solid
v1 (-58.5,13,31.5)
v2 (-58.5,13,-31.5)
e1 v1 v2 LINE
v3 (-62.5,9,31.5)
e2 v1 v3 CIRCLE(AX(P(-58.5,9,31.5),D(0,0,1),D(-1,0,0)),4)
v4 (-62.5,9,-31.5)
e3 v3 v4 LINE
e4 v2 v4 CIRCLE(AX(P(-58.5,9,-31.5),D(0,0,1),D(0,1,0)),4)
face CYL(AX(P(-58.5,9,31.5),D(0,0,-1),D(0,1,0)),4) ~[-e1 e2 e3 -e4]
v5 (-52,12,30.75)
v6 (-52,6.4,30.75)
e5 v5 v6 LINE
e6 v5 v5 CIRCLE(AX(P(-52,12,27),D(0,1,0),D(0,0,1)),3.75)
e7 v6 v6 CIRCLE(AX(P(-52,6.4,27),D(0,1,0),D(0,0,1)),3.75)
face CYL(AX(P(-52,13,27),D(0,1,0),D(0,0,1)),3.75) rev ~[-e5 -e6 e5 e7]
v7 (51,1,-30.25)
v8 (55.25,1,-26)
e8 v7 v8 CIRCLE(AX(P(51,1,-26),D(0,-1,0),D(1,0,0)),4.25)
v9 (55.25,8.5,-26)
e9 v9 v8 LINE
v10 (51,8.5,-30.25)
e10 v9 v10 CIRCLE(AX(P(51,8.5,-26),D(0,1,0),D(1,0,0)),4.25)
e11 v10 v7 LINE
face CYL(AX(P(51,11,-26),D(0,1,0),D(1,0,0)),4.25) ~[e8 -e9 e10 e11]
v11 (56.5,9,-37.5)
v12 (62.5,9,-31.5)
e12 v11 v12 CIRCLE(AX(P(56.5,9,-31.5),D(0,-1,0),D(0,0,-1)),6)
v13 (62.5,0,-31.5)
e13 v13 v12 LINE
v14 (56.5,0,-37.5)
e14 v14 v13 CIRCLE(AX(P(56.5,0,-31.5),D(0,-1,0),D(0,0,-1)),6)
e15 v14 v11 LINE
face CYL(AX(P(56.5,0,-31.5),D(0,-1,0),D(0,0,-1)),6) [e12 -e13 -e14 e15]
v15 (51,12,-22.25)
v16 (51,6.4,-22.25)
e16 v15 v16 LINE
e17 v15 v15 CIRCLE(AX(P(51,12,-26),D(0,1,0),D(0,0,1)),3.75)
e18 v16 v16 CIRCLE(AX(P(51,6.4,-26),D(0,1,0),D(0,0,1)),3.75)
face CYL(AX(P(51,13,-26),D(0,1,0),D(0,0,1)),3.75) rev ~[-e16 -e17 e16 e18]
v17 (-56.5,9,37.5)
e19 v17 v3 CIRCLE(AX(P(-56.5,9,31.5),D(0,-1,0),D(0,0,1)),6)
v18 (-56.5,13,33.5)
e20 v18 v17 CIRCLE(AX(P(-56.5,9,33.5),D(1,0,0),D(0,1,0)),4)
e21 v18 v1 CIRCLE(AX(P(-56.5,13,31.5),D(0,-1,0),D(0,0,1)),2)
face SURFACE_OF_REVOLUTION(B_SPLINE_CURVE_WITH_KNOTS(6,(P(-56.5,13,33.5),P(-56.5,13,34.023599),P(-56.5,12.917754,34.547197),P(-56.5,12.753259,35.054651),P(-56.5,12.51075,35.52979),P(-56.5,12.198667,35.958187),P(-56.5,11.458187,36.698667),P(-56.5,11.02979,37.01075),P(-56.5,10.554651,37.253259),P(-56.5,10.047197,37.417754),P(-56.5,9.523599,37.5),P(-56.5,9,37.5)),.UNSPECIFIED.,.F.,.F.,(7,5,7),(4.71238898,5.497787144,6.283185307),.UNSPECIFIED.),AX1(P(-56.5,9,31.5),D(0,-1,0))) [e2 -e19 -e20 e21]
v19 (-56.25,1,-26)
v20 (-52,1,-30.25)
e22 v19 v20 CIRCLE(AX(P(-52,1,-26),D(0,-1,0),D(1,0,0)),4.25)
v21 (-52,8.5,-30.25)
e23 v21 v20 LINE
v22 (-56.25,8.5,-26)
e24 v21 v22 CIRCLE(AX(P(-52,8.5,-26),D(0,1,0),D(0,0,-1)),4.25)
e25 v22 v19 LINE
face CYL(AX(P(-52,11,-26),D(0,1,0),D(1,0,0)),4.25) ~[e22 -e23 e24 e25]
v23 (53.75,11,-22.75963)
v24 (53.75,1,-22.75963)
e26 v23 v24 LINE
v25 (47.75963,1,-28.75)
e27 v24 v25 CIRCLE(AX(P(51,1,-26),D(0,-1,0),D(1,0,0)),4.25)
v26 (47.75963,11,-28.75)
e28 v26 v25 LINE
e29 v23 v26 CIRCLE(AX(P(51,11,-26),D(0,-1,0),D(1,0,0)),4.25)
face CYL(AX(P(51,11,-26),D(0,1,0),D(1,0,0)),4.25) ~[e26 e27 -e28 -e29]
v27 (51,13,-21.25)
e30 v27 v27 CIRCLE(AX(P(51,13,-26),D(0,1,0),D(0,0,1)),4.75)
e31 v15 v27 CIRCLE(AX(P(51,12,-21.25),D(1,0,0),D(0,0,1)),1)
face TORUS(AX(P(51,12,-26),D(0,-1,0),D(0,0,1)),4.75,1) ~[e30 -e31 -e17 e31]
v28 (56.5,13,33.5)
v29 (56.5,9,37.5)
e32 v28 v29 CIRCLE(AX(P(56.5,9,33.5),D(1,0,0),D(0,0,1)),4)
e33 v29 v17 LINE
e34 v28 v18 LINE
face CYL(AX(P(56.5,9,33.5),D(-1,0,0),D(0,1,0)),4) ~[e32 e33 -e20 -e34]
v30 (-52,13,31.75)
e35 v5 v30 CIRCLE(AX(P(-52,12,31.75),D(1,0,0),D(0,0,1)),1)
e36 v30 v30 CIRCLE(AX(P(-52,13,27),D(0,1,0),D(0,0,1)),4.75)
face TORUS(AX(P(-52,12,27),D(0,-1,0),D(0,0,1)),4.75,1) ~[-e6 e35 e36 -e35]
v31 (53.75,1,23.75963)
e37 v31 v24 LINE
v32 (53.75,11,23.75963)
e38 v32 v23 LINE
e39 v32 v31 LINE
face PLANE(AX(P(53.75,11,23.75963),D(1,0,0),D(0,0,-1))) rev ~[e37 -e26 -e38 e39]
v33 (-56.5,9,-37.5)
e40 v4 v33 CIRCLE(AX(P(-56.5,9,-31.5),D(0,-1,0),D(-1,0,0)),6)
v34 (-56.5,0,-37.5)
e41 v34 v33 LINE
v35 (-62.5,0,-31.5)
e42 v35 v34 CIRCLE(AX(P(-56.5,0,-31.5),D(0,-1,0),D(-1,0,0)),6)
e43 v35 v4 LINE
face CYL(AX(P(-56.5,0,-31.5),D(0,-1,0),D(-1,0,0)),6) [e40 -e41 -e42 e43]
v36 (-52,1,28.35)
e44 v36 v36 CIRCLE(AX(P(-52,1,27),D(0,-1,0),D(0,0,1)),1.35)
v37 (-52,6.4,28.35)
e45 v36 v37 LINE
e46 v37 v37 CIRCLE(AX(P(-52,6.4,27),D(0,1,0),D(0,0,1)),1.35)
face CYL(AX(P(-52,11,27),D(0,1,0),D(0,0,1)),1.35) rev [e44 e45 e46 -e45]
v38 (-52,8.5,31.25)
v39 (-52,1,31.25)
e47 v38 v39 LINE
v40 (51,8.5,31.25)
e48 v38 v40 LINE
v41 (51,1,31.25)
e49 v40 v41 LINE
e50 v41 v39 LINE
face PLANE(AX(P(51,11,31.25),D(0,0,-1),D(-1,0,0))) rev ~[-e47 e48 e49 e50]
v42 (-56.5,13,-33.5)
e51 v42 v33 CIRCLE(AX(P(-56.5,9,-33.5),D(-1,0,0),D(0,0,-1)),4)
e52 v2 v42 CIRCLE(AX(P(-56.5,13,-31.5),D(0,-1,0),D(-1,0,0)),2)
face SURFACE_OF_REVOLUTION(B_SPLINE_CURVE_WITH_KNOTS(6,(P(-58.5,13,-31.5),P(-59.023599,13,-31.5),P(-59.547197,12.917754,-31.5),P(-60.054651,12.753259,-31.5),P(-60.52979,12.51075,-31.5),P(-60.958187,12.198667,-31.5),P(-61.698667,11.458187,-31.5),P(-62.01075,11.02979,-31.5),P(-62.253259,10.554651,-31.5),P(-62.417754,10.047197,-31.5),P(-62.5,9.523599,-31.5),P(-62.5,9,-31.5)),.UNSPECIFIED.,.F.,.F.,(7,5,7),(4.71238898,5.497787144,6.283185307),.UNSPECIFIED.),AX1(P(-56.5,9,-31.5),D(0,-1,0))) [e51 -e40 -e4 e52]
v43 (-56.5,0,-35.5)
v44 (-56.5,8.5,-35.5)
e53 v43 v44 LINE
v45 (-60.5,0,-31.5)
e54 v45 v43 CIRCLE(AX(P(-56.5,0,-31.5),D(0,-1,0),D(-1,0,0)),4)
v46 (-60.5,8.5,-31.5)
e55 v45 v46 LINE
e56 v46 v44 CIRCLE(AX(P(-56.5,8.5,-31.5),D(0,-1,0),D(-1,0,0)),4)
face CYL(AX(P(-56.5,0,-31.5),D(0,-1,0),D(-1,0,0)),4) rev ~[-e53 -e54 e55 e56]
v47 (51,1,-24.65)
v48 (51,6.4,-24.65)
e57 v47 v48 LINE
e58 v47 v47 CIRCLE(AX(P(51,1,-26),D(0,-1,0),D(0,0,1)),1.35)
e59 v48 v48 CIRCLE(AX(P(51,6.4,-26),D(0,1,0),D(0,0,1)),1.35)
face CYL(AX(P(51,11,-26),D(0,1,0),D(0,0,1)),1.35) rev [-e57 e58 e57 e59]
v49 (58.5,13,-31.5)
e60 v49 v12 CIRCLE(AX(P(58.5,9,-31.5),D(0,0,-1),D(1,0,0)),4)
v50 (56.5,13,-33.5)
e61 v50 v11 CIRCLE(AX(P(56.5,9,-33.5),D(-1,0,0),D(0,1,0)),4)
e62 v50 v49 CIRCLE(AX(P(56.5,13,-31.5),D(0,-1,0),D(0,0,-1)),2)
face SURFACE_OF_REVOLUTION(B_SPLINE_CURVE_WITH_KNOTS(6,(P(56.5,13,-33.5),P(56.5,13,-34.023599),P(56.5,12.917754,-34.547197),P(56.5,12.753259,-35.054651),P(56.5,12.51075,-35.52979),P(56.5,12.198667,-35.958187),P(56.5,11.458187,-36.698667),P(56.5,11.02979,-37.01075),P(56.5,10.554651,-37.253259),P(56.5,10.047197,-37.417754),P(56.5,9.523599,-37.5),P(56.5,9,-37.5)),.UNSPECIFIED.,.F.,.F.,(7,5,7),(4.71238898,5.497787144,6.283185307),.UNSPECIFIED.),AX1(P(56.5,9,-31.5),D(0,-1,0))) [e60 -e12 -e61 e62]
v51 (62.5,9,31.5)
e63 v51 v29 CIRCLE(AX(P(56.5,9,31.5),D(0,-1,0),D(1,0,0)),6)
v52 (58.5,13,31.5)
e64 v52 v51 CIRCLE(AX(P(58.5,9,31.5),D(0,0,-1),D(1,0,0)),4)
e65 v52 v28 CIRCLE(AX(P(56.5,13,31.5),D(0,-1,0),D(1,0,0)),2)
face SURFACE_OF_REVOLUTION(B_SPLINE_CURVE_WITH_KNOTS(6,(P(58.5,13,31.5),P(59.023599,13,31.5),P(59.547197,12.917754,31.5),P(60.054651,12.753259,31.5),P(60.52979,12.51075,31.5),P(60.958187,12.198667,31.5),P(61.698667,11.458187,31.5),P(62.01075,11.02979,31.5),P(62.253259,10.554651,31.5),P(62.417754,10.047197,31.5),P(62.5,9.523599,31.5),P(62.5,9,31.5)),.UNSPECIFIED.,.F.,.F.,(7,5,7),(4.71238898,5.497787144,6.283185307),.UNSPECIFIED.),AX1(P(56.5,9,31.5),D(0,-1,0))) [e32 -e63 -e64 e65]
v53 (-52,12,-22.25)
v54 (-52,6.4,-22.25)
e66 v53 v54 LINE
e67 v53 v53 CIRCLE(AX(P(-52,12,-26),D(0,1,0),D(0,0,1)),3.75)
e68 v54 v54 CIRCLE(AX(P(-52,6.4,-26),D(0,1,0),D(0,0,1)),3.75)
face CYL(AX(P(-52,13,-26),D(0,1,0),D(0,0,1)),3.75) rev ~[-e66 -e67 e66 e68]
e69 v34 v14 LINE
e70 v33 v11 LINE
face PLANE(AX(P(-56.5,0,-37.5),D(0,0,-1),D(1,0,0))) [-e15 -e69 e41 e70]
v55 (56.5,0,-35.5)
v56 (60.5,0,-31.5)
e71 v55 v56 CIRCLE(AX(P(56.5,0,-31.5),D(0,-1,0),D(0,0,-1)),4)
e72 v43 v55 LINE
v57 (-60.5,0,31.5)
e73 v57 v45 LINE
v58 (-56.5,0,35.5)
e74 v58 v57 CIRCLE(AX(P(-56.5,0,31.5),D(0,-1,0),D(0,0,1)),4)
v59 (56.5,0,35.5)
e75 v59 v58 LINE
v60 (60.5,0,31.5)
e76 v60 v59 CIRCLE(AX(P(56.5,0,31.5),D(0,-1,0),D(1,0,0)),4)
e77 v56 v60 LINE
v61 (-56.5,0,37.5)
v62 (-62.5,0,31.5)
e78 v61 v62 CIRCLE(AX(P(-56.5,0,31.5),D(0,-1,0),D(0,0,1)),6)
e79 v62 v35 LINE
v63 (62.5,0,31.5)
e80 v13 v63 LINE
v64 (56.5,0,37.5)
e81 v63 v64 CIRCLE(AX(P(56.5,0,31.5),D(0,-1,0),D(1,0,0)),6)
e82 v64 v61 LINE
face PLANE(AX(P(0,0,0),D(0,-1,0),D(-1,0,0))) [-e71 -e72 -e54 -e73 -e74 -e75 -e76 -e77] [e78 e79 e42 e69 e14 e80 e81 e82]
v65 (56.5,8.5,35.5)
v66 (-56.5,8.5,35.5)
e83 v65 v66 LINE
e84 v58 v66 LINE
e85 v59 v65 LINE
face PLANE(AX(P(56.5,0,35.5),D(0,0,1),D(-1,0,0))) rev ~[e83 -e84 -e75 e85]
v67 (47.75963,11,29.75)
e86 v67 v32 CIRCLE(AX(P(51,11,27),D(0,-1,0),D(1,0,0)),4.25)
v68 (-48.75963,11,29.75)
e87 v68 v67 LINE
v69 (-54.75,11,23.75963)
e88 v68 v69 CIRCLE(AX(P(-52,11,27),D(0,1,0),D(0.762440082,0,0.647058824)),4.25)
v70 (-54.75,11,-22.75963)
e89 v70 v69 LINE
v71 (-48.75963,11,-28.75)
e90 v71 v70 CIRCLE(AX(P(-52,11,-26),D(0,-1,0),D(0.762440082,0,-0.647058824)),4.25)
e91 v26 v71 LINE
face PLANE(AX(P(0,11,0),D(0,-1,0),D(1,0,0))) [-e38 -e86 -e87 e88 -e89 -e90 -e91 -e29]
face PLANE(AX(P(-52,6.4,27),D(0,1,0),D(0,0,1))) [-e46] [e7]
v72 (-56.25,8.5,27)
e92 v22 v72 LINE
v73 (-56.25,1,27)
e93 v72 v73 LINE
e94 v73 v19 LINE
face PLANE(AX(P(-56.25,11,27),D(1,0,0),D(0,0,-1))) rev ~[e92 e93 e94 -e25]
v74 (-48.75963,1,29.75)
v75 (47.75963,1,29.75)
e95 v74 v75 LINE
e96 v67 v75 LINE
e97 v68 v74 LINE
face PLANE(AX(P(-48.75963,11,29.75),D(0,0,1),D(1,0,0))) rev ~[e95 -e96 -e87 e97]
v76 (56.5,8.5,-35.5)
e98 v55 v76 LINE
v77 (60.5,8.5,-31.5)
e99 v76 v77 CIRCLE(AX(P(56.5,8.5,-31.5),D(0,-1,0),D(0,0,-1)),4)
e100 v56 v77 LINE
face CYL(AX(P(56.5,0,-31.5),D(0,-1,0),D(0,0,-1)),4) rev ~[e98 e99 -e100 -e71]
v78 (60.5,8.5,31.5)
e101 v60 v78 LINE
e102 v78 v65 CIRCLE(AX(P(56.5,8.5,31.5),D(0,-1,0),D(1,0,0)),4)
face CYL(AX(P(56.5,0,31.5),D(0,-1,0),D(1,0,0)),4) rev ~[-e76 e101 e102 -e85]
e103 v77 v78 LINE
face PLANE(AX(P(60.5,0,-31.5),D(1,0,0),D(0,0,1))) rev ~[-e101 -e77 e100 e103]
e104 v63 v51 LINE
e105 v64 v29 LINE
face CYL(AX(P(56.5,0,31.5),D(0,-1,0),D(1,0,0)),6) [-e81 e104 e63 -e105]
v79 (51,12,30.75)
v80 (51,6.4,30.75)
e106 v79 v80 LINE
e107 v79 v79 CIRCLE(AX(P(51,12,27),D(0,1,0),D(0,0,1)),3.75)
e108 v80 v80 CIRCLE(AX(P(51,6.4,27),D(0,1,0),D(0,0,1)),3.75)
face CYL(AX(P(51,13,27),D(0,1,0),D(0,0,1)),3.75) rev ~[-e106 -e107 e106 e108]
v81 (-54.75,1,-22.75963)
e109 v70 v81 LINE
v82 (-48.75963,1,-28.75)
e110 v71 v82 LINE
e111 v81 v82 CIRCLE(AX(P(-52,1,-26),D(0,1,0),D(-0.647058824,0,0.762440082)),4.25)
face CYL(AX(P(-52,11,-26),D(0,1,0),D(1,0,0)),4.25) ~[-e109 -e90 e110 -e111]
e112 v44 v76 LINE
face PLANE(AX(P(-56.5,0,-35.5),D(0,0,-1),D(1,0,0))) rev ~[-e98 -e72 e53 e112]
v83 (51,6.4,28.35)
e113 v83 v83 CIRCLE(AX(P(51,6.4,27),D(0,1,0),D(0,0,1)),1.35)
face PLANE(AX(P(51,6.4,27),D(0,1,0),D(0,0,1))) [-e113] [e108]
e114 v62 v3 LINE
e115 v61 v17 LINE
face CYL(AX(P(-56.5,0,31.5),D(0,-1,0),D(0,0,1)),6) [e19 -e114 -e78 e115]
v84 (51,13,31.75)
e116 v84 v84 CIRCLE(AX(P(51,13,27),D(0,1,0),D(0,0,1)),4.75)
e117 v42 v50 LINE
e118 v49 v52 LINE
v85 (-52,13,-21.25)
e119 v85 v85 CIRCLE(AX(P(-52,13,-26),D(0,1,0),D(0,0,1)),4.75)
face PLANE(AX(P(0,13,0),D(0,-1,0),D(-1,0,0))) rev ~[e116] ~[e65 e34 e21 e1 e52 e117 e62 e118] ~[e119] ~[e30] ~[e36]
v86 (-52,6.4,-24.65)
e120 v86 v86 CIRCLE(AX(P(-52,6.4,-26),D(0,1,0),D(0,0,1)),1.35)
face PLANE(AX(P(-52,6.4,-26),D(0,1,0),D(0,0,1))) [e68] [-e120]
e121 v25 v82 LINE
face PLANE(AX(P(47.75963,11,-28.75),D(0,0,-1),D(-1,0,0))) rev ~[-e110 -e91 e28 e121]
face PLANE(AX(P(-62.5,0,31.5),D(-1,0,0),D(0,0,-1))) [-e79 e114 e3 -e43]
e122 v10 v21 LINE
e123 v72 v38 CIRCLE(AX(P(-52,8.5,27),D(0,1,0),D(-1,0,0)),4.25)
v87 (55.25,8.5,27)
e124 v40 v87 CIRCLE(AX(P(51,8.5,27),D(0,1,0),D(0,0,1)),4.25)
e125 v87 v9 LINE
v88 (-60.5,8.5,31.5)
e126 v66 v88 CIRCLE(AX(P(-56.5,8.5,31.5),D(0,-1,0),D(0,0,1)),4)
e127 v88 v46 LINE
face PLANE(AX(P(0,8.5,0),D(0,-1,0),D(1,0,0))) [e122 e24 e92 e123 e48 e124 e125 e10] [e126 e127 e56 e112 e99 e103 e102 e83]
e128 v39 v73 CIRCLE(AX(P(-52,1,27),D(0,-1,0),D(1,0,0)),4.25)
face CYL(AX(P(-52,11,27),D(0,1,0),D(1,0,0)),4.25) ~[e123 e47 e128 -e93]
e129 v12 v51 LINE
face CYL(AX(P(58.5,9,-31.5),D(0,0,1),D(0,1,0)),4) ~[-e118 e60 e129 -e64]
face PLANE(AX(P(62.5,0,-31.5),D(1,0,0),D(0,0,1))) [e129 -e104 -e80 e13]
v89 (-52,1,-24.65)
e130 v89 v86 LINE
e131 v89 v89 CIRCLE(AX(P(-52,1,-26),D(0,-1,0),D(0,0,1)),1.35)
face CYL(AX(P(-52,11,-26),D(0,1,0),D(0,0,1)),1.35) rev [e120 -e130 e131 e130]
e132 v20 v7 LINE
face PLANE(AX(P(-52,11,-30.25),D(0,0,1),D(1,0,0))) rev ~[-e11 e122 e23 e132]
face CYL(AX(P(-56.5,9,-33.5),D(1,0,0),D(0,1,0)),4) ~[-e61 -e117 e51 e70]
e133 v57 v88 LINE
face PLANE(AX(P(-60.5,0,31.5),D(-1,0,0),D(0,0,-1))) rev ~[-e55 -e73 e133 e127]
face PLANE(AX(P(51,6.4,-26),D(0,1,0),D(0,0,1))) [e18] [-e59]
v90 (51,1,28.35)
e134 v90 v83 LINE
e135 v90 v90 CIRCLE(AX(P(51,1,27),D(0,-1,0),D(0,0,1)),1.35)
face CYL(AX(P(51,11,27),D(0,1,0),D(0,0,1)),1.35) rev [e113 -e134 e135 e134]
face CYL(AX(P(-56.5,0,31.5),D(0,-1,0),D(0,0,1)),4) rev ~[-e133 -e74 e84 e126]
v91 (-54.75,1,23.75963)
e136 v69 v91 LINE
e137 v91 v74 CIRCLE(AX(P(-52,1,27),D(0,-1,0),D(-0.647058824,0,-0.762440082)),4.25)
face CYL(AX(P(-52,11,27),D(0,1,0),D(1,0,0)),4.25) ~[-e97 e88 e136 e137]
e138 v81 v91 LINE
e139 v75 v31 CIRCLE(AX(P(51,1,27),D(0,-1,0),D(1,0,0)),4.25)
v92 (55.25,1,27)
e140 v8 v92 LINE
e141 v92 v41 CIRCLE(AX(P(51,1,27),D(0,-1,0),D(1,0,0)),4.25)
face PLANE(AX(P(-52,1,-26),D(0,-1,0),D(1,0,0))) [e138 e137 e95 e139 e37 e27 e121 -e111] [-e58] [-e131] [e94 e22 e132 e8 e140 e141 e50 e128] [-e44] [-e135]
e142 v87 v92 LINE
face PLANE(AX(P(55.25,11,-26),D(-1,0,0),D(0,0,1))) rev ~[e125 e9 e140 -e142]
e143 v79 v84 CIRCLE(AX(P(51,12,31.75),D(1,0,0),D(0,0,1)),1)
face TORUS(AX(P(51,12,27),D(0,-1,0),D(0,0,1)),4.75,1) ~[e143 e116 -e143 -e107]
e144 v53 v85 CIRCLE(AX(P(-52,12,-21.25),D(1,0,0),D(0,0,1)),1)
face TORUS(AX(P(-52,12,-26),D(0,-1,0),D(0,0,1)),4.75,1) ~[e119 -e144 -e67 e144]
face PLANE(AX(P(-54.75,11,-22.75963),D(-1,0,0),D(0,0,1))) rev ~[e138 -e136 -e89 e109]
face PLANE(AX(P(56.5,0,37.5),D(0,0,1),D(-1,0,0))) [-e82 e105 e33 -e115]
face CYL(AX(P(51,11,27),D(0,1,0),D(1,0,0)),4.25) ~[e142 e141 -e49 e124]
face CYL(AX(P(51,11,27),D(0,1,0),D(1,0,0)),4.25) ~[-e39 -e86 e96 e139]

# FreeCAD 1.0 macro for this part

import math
import FreeCAD as App
import Part
import Sketcher
Q = App.Units.Quantity


def edges_at(feature, points):
    """Names of the edges that pass closest to the given points."""
    edges = feature.Shape.Edges
    near = lambda p: min(range(len(edges)), key=lambda i: edges[i].distToShape(Part.Vertex(*p))[0])
    return sorted({f"Edge{near(p) + 1}" for p in points})

doc = App.newDocument("Part")
body = doc.addObject("PartDesign::Body", "Body")

sketch1 = doc.addObject("Sketcher::SketchObject", "Sketch")
body.addObject(sketch1)
sketch1.AttachmentSupport = (doc.XZ_Plane, [""])
sketch1.MapMode = "FlatFace"
sketch1.addGeometry(Part.LineSegment(App.Vector(56, -38, 0), App.Vector(-56, -38, 0)), False)
sketch1.addGeometry(Part.ArcOfCircle(Part.Circle(App.Vector(-56, -32, 0), App.Vector(0, 0, 1), 6), math.radians(180), math.radians(270)), False)
sketch1.addGeometry(Part.LineSegment(App.Vector(-62, -32, 0), App.Vector(-62, 32, 0)), False)
sketch1.addGeometry(Part.ArcOfCircle(Part.Circle(App.Vector(-56, 32, 0), App.Vector(0, 0, 1), 6), math.radians(90), math.radians(180)), False)
sketch1.addGeometry(Part.LineSegment(App.Vector(-56, 38, 0), App.Vector(56, 38, 0)), False)
sketch1.addGeometry(Part.ArcOfCircle(Part.Circle(App.Vector(56, 32, 0), App.Vector(0, 0, 1), 6), math.radians(0), math.radians(90)), False)
sketch1.addGeometry(Part.LineSegment(App.Vector(62, 32, 0), App.Vector(62, -32, 0)), False)
sketch1.addGeometry(Part.ArcOfCircle(Part.Circle(App.Vector(56, -32, 0), App.Vector(0, 0, 1), 6), math.radians(-90), math.radians(0)), False)
sketch1.addConstraint(Sketcher.Constraint("Tangent", 0, 2, 1, 2))
sketch1.addConstraint(Sketcher.Constraint("Tangent", 1, 1, 2, 1))
sketch1.addConstraint(Sketcher.Constraint("Tangent", 2, 2, 3, 2))
sketch1.addConstraint(Sketcher.Constraint("Tangent", 3, 1, 4, 1))
sketch1.addConstraint(Sketcher.Constraint("Tangent", 4, 2, 5, 2))
sketch1.addConstraint(Sketcher.Constraint("Tangent", 5, 1, 6, 1))
sketch1.addConstraint(Sketcher.Constraint("Tangent", 6, 2, 7, 2))
sketch1.addConstraint(Sketcher.Constraint("Tangent", 7, 1, 0, 1))
sketch1.addConstraint(Sketcher.Constraint("Horizontal", 0))
sketch1.addConstraint(Sketcher.Constraint("Vertical", 2))
sketch1.addConstraint(Sketcher.Constraint("Horizontal", 4))
sketch1.addConstraint(Sketcher.Constraint("Vertical", 6))
sketch1.addConstraint(Sketcher.Constraint("Equal", 1, 3))
sketch1.addConstraint(Sketcher.Constraint("Equal", 3, 5))
sketch1.addConstraint(Sketcher.Constraint("Equal", 5, 7))
sketch1.addConstraint(Sketcher.Constraint("Symmetric", 1, 3, 5, 3, -1, 1))
sketch1.addConstraint(Sketcher.Constraint("Radius", 1, Q("6 mm")))
sketch1.addConstraint(Sketcher.Constraint("DistanceX", 0, 2, 0, 1, Q("113 mm")))
sketch1.addConstraint(Sketcher.Constraint("DistanceY", 2, 1, 2, 2, Q("63 mm")))
pad1 = doc.addObject("PartDesign::Pad", "Pad")
body.addObject(pad1)
pad1.Profile = sketch1
pad1.Length = 13
pad1.Reversed = True

sketch2 = doc.addObject("Sketcher::SketchObject", "Sketch001")
body.addObject(sketch2)
sketch2.AttachmentSupport = (doc.XZ_Plane, [""])
sketch2.MapMode = "FlatFace"
sketch2.addGeometry(Part.LineSegment(App.Vector(-60.5, 31.5, 0), App.Vector(-60.5, -31.5, 0)), False)
sketch2.addGeometry(Part.ArcOfCircle(Part.Circle(App.Vector(-56.5, -31.5, 0), App.Vector(0, 0, 1), 4), math.radians(180), math.radians(270)), False)
sketch2.addGeometry(Part.LineSegment(App.Vector(-56.5, -35.5, 0), App.Vector(56.5, -35.5, 0)), False)
sketch2.addGeometry(Part.ArcOfCircle(Part.Circle(App.Vector(56.5, -31.5, 0), App.Vector(0, 0, 1), 4), math.radians(-90), math.radians(0)), False)
sketch2.addGeometry(Part.LineSegment(App.Vector(60.5, -31.5, 0), App.Vector(60.5, 31.5, 0)), False)
sketch2.addGeometry(Part.ArcOfCircle(Part.Circle(App.Vector(56.5, 31.5, 0), App.Vector(0, 0, 1), 4), math.radians(0), math.radians(90)), False)
sketch2.addGeometry(Part.LineSegment(App.Vector(56.5, 35.5, 0), App.Vector(-56.5, 35.5, 0)), False)
sketch2.addGeometry(Part.ArcOfCircle(Part.Circle(App.Vector(-56.5, 31.5, 0), App.Vector(0, 0, 1), 4), math.radians(90), math.radians(180)), False)
sketch2.addConstraint(Sketcher.Constraint("Tangent", 0, 2, 1, 1))
sketch2.addConstraint(Sketcher.Constraint("Tangent", 1, 2, 2, 1))
sketch2.addConstraint(Sketcher.Constraint("Tangent", 2, 2, 3, 1))
sketch2.addConstraint(Sketcher.Constraint("Tangent", 3, 2, 4, 1))
sketch2.addConstraint(Sketcher.Constraint("Tangent", 4, 2, 5, 1))
sketch2.addConstraint(Sketcher.Constraint("Tangent", 5, 2, 6, 1))
sketch2.addConstraint(Sketcher.Constraint("Tangent", 6, 2, 7, 1))
sketch2.addConstraint(Sketcher.Constraint("Tangent", 7, 2, 0, 1))
sketch2.addConstraint(Sketcher.Constraint("Vertical", 0))
sketch2.addConstraint(Sketcher.Constraint("Horizontal", 2))
sketch2.addConstraint(Sketcher.Constraint("Vertical", 4))
sketch2.addConstraint(Sketcher.Constraint("Horizontal", 6))
sketch2.addConstraint(Sketcher.Constraint("Equal", 1, 3))
sketch2.addConstraint(Sketcher.Constraint("Equal", 3, 5))
sketch2.addConstraint(Sketcher.Constraint("Equal", 5, 7))
sketch2.addConstraint(Sketcher.Constraint("Symmetric", 1, 3, 5, 3, -1, 1))
sketch2.addConstraint(Sketcher.Constraint("Radius", 1, Q("4 mm")))
sketch2.addConstraint(Sketcher.Constraint("DistanceX", 2, 1, 2, 2, Q("113 mm")))
sketch2.addConstraint(Sketcher.Constraint("DistanceY", 0, 2, 0, 1, Q("63 mm")))
pocket1 = doc.addObject("PartDesign::Pocket", "Pocket")
body.addObject(pocket1)
pocket1.Profile = sketch2
pocket1.Length = 11

sketch3 = doc.addObject("Sketcher::SketchObject", "Sketch002")
body.addObject(sketch3)
sketch3.AttachmentSupport = (doc.XZ_Plane, [""])
sketch3.MapMode = "FlatFace"
sketch3.AttachmentOffset = App.Placement(App.Vector(0, 0, -13), App.Rotation())
sketch3.addGeometry(Part.Circle(App.Vector(-52, 27, 0), App.Vector(0, 0, 1), 1.4), False)
sketch3.addGeometry(Part.Circle(App.Vector(51, 27, 0), App.Vector(0, 0, 1), 1.4), False)
sketch3.addGeometry(Part.Circle(App.Vector(51, -26, 0), App.Vector(0, 0, 1), 1.4), False)
sketch3.addGeometry(Part.Circle(App.Vector(-52, -26, 0), App.Vector(0, 0, 1), 1.4), False)
sketch3.addConstraint(Sketcher.Constraint("Equal", 0, 1))
sketch3.addConstraint(Sketcher.Constraint("Equal", 1, 2))
sketch3.addConstraint(Sketcher.Constraint("Equal", 2, 3))
sketch3.addConstraint(Sketcher.Constraint("Horizontal", 0, 3, 1, 3))
sketch3.addConstraint(Sketcher.Constraint("Horizontal", 2, 3, 3, 3))
sketch3.addConstraint(Sketcher.Constraint("Vertical", 1, 3, 2, 3))
sketch3.addConstraint(Sketcher.Constraint("Vertical", 0, 3, 3, 3))
sketch3.addConstraint(Sketcher.Constraint("Diameter", 0, Q("2.7 mm")))
sketch3.addConstraint(Sketcher.Constraint("DistanceX", 0, 3, -1, 1, Q("52 mm")))
sketch3.addConstraint(Sketcher.Constraint("DistanceY", -1, 1, 0, 3, Q("27 mm")))
sketch3.addConstraint(Sketcher.Constraint("DistanceX", -1, 1, 1, 3, Q("51 mm")))
sketch3.addConstraint(Sketcher.Constraint("DistanceY", 2, 3, -1, 1, Q("26 mm")))
pocket2 = doc.addObject("PartDesign::Pocket", "Pocket001")
body.addObject(pocket2)
pocket2.Profile = sketch3
pocket2.Type = "ThroughAll"
pocket2.Reversed = True

sketch4 = doc.addObject("Sketcher::SketchObject", "Sketch003")
body.addObject(sketch4)
sketch4.AttachmentSupport = (doc.XZ_Plane, [""])
sketch4.MapMode = "FlatFace"
sketch4.AttachmentOffset = App.Placement(App.Vector(0, 0, -11), App.Rotation())
sketch4.addGeometry(Part.LineSegment(App.Vector(-52, -30.2, 0), App.Vector(51, -30.2, 0)), False)
sketch4.addGeometry(Part.ArcOfCircle(Part.Circle(App.Vector(51, -26, 0), App.Vector(0, 0, 1), 4.2), math.radians(-90), math.radians(0)), False)
sketch4.addGeometry(Part.LineSegment(App.Vector(55.2, -26, 0), App.Vector(55.2, 27, 0)), False)
sketch4.addGeometry(Part.ArcOfCircle(Part.Circle(App.Vector(51, 27, 0), App.Vector(0, 0, 1), 4.2), math.radians(0), math.radians(90)), False)
sketch4.addGeometry(Part.LineSegment(App.Vector(51, 31.2, 0), App.Vector(-52, 31.2, 0)), False)
sketch4.addGeometry(Part.ArcOfCircle(Part.Circle(App.Vector(-52, 27, 0), App.Vector(0, 0, 1), 4.2), math.radians(90), math.radians(180)), False)
sketch4.addGeometry(Part.LineSegment(App.Vector(-56.2, 27, 0), App.Vector(-56.2, -26, 0)), False)
sketch4.addGeometry(Part.ArcOfCircle(Part.Circle(App.Vector(-52, -26, 0), App.Vector(0, 0, 1), 4.2), math.radians(180), math.radians(270)), False)
sketch4.addGeometry(Part.LineSegment(App.Vector(47.8, -28.8, 0), App.Vector(-48.8, -28.8, 0)), False)
sketch4.addGeometry(Part.ArcOfCircle(Part.Circle(App.Vector(-52, -26, 0), App.Vector(0, 0, 1), 4.2), math.radians(-40), math.radians(130)), False)
sketch4.addGeometry(Part.LineSegment(App.Vector(-54.8, -22.8, 0), App.Vector(-54.8, 23.8, 0)), False)
sketch4.addGeometry(Part.ArcOfCircle(Part.Circle(App.Vector(-52, 27, 0), App.Vector(0, 0, 1), 4.2), math.radians(-130), math.radians(40)), False)
sketch4.addGeometry(Part.LineSegment(App.Vector(-48.8, 29.8, 0), App.Vector(47.8, 29.8, 0)), False)
sketch4.addGeometry(Part.ArcOfCircle(Part.Circle(App.Vector(51, 27, 0), App.Vector(0, 0, 1), 4.2), math.radians(140), math.radians(310)), False)
sketch4.addGeometry(Part.LineSegment(App.Vector(53.8, 23.8, 0), App.Vector(53.8, -22.8, 0)), False)
sketch4.addGeometry(Part.ArcOfCircle(Part.Circle(App.Vector(51, -26, 0), App.Vector(0, 0, 1), 4.2), math.radians(50), math.radians(220)), False)
sketch4.addGeometry(Part.Circle(App.Vector(51, -26, 0), App.Vector(0, 0, 1), 1.4), False)
sketch4.addGeometry(Part.Circle(App.Vector(-52, -26, 0), App.Vector(0, 0, 1), 1.4), False)
sketch4.addGeometry(Part.Circle(App.Vector(51, 27, 0), App.Vector(0, 0, 1), 1.4), False)
sketch4.addGeometry(Part.Circle(App.Vector(-52, 27, 0), App.Vector(0, 0, 1), 1.4), False)
sketch4.addConstraint(Sketcher.Constraint("Tangent", 0, 2, 1, 1))
sketch4.addConstraint(Sketcher.Constraint("Tangent", 1, 2, 2, 1))
sketch4.addConstraint(Sketcher.Constraint("Tangent", 2, 2, 3, 1))
sketch4.addConstraint(Sketcher.Constraint("Tangent", 3, 2, 4, 1))
sketch4.addConstraint(Sketcher.Constraint("Tangent", 4, 2, 5, 1))
sketch4.addConstraint(Sketcher.Constraint("Tangent", 5, 2, 6, 1))
sketch4.addConstraint(Sketcher.Constraint("Tangent", 6, 2, 7, 1))
sketch4.addConstraint(Sketcher.Constraint("Tangent", 7, 2, 0, 1))
sketch4.addConstraint(Sketcher.Constraint("Coincident", 8, 2, 9, 1))
sketch4.addConstraint(Sketcher.Constraint("Coincident", 9, 2, 10, 1))
sketch4.addConstraint(Sketcher.Constraint("Coincident", 10, 2, 11, 1))
sketch4.addConstraint(Sketcher.Constraint("Coincident", 11, 2, 12, 1))
sketch4.addConstraint(Sketcher.Constraint("Coincident", 12, 2, 13, 1))
sketch4.addConstraint(Sketcher.Constraint("Coincident", 13, 2, 14, 1))
sketch4.addConstraint(Sketcher.Constraint("Coincident", 14, 2, 15, 1))
sketch4.addConstraint(Sketcher.Constraint("Coincident", 15, 2, 8, 1))
sketch4.addConstraint(Sketcher.Constraint("Horizontal", 0))
sketch4.addConstraint(Sketcher.Constraint("Vertical", 2))
sketch4.addConstraint(Sketcher.Constraint("Horizontal", 4))
sketch4.addConstraint(Sketcher.Constraint("Vertical", 6))
sketch4.addConstraint(Sketcher.Constraint("Horizontal", 8))
sketch4.addConstraint(Sketcher.Constraint("Vertical", 10))
sketch4.addConstraint(Sketcher.Constraint("Horizontal", 12))
sketch4.addConstraint(Sketcher.Constraint("Vertical", 14))
sketch4.addConstraint(Sketcher.Constraint("Coincident", 9, 3, 7, 3))
sketch4.addConstraint(Sketcher.Constraint("Coincident", 11, 3, 5, 3))
sketch4.addConstraint(Sketcher.Constraint("Coincident", 13, 3, 3, 3))
sketch4.addConstraint(Sketcher.Constraint("Coincident", 15, 3, 1, 3))
sketch4.addConstraint(Sketcher.Constraint("Coincident", 16, 3, 1, 3))
sketch4.addConstraint(Sketcher.Constraint("Coincident", 17, 3, 7, 3))
sketch4.addConstraint(Sketcher.Constraint("Coincident", 18, 3, 3, 3))
sketch4.addConstraint(Sketcher.Constraint("Coincident", 19, 3, 5, 3))
sketch4.addConstraint(Sketcher.Constraint("Equal", 1, 3))
sketch4.addConstraint(Sketcher.Constraint("Equal", 3, 5))
sketch4.addConstraint(Sketcher.Constraint("Equal", 5, 7))
sketch4.addConstraint(Sketcher.Constraint("Equal", 7, 9))
sketch4.addConstraint(Sketcher.Constraint("Equal", 9, 11))
sketch4.addConstraint(Sketcher.Constraint("Equal", 11, 13))
sketch4.addConstraint(Sketcher.Constraint("Equal", 13, 15))
sketch4.addConstraint(Sketcher.Constraint("Equal", 16, 17))
sketch4.addConstraint(Sketcher.Constraint("Equal", 17, 18))
sketch4.addConstraint(Sketcher.Constraint("Equal", 18, 19))
sketch4.addConstraint(Sketcher.Constraint("Horizontal", 10, 2, 13, 2))
sketch4.addConstraint(Sketcher.Constraint("Vertical", 8, 2, 11, 2))
sketch4.addConstraint(Sketcher.Constraint("Diameter", 16, Q("2.7 mm")))
sketch4.addConstraint(Sketcher.Constraint("DistanceX", 0, 1, 0, 2, Q("103 mm")))
sketch4.addConstraint(Sketcher.Constraint("DistanceY", 2, 1, 2, 2, Q("53 mm")))
sketch4.addConstraint(Sketcher.Constraint("Radius", 1, Q("4.25 mm")))
sketch4.addConstraint(Sketcher.Constraint("DistanceX", -1, 1, 1, 3, Q("51 mm")))
sketch4.addConstraint(Sketcher.Constraint("DistanceY", 1, 3, -1, 1, Q("26 mm")))
sketch4.addConstraint(Sketcher.Constraint("DistanceY", 7, 2, 8, 2, Q("1.5 mm")))
sketch4.addConstraint(Sketcher.Constraint("DistanceX", 6, 2, 9, 2, Q("1.5 mm")))
pad2 = doc.addObject("PartDesign::Pad", "Pad001")
body.addObject(pad2)
pad2.Profile = sketch4
pad2.Length = 10

sketch5 = doc.addObject("Sketcher::SketchObject", "Sketch004")
body.addObject(sketch5)
sketch5.AttachmentSupport = (doc.XZ_Plane, [""])
sketch5.MapMode = "FlatFace"
sketch5.AttachmentOffset = App.Placement(App.Vector(0, 0, -13), App.Rotation())
sketch5.addGeometry(Part.Circle(App.Vector(51, -26, 0), App.Vector(0, 0, 1), 3.8), False)
sketch5.addGeometry(Part.Circle(App.Vector(51, 27, 0), App.Vector(0, 0, 1), 3.8), False)
sketch5.addGeometry(Part.Circle(App.Vector(-52, -26, 0), App.Vector(0, 0, 1), 3.8), False)
sketch5.addGeometry(Part.Circle(App.Vector(-52, 27, 0), App.Vector(0, 0, 1), 3.8), False)
sketch5.addConstraint(Sketcher.Constraint("Equal", 0, 1))
sketch5.addConstraint(Sketcher.Constraint("Equal", 1, 2))
sketch5.addConstraint(Sketcher.Constraint("Equal", 2, 3))
sketch5.addConstraint(Sketcher.Constraint("Horizontal", 0, 3, 2, 3))
sketch5.addConstraint(Sketcher.Constraint("Horizontal", 1, 3, 3, 3))
sketch5.addConstraint(Sketcher.Constraint("Vertical", 0, 3, 1, 3))
sketch5.addConstraint(Sketcher.Constraint("Vertical", 2, 3, 3, 3))
sketch5.addConstraint(Sketcher.Constraint("Diameter", 0, Q("7.5 mm")))
sketch5.addConstraint(Sketcher.Constraint("DistanceX", -1, 1, 0, 3, Q("51 mm")))
sketch5.addConstraint(Sketcher.Constraint("DistanceY", 0, 3, -1, 1, Q("26 mm")))
sketch5.addConstraint(Sketcher.Constraint("DistanceY", -1, 1, 1, 3, Q("27 mm")))
sketch5.addConstraint(Sketcher.Constraint("DistanceX", 2, 3, -1, 1, Q("52 mm")))
pocket3 = doc.addObject("PartDesign::Pocket", "Pocket002")
body.addObject(pocket3)
pocket3.Profile = sketch5
pocket3.Length = 6.6
pocket3.Reversed = True
doc.recompute()

fillet = doc.addObject("PartDesign::Fillet", "Fillet")
body.addObject(fillet)
fillet.Base = (pocket3, edges_at(pocket3, [
    (51, 13, 23.25),
    (-52, 13, -29.75),
    (-52, 13, 23.25),
    (51, 13, -29.75),
]))
fillet.Radius = 1
doc.recompute()

fillet2 = doc.addObject("PartDesign::Fillet", "Fillet001")
body.addObject(fillet2)
fillet2.Base = (fillet, edges_at(fillet, [
    (60.743, 13, 35.743),
    (62.5, 13, 0),
    (60.743, 13, -35.743),
    (0, 13, -37.5),
    (-60.743, 13, -35.743),
    (-62.5, 13, 0),
    (-60.743, 13, 35.743),
    (0, 13, 37.5),
]))
fillet2.Radius = 4

sketch6 = doc.addObject("Sketcher::SketchObject", "Sketch005")
body.addObject(sketch6)
sketch6.AttachmentSupport = (doc.XZ_Plane, [""])
sketch6.MapMode = "FlatFace"
sketch6.AttachmentOffset = App.Placement(App.Vector(0, 0, -11), App.Rotation())
sketch6.addGeometry(Part.LineSegment(App.Vector(-60.5, 31.5, 0), App.Vector(-60.5, -31.5, 0)), False)
sketch6.addGeometry(Part.ArcOfCircle(Part.Circle(App.Vector(-56.5, -31.5, 0), App.Vector(0, 0, 1), 4), math.radians(180), math.radians(270)), False)
sketch6.addGeometry(Part.LineSegment(App.Vector(-56.5, -35.5, 0), App.Vector(56.5, -35.5, 0)), False)
sketch6.addGeometry(Part.ArcOfCircle(Part.Circle(App.Vector(56.5, -31.5, 0), App.Vector(0, 0, 1), 4), math.radians(-90), math.radians(0)), False)
sketch6.addGeometry(Part.LineSegment(App.Vector(60.5, -31.5, 0), App.Vector(60.5, 31.5, 0)), False)
sketch6.addGeometry(Part.ArcOfCircle(Part.Circle(App.Vector(56.5, 31.5, 0), App.Vector(0, 0, 1), 4), math.radians(0), math.radians(90)), False)
sketch6.addGeometry(Part.LineSegment(App.Vector(56.5, 35.5, 0), App.Vector(-56.5, 35.5, 0)), False)
sketch6.addGeometry(Part.ArcOfCircle(Part.Circle(App.Vector(-56.5, 31.5, 0), App.Vector(0, 0, 1), 4), math.radians(90), math.radians(180)), False)
sketch6.addGeometry(Part.ArcOfCircle(Part.Circle(App.Vector(51, 27, 0), App.Vector(0, 0, 1), 4.2), math.radians(0), math.radians(90)), False)
sketch6.addGeometry(Part.LineSegment(App.Vector(55.2, 27, 0), App.Vector(55.2, -26, 0)), False)
sketch6.addGeometry(Part.ArcOfCircle(Part.Circle(App.Vector(51, -26, 0), App.Vector(0, 0, 1), 4.2), math.radians(-90), math.radians(0)), False)
sketch6.addGeometry(Part.LineSegment(App.Vector(51, -30.2, 0), App.Vector(-52, -30.2, 0)), False)
sketch6.addGeometry(Part.ArcOfCircle(Part.Circle(App.Vector(-52, -26, 0), App.Vector(0, 0, 1), 4.2), math.radians(180), math.radians(270)), False)
sketch6.addGeometry(Part.LineSegment(App.Vector(-56.2, -26, 0), App.Vector(-56.2, 27, 0)), False)
sketch6.addGeometry(Part.ArcOfCircle(Part.Circle(App.Vector(-52, 27, 0), App.Vector(0, 0, 1), 4.2), math.radians(90), math.radians(180)), False)
sketch6.addGeometry(Part.LineSegment(App.Vector(-52, 31.2, 0), App.Vector(51, 31.2, 0)), False)
sketch6.addConstraint(Sketcher.Constraint("Tangent", 0, 2, 1, 1))
sketch6.addConstraint(Sketcher.Constraint("Tangent", 1, 2, 2, 1))
sketch6.addConstraint(Sketcher.Constraint("Tangent", 2, 2, 3, 1))
sketch6.addConstraint(Sketcher.Constraint("Tangent", 3, 2, 4, 1))
sketch6.addConstraint(Sketcher.Constraint("Tangent", 4, 2, 5, 1))
sketch6.addConstraint(Sketcher.Constraint("Tangent", 5, 2, 6, 1))
sketch6.addConstraint(Sketcher.Constraint("Tangent", 6, 2, 7, 1))
sketch6.addConstraint(Sketcher.Constraint("Tangent", 7, 2, 0, 1))
sketch6.addConstraint(Sketcher.Constraint("Tangent", 8, 1, 9, 1))
sketch6.addConstraint(Sketcher.Constraint("Tangent", 9, 2, 10, 2))
sketch6.addConstraint(Sketcher.Constraint("Tangent", 10, 1, 11, 1))
sketch6.addConstraint(Sketcher.Constraint("Tangent", 11, 2, 12, 2))
sketch6.addConstraint(Sketcher.Constraint("Tangent", 12, 1, 13, 1))
sketch6.addConstraint(Sketcher.Constraint("Tangent", 13, 2, 14, 2))
sketch6.addConstraint(Sketcher.Constraint("Tangent", 14, 1, 15, 1))
sketch6.addConstraint(Sketcher.Constraint("Tangent", 15, 2, 8, 2))
sketch6.addConstraint(Sketcher.Constraint("Vertical", 0))
sketch6.addConstraint(Sketcher.Constraint("Horizontal", 2))
sketch6.addConstraint(Sketcher.Constraint("Vertical", 4))
sketch6.addConstraint(Sketcher.Constraint("Horizontal", 6))
sketch6.addConstraint(Sketcher.Constraint("Vertical", 9))
sketch6.addConstraint(Sketcher.Constraint("Horizontal", 11))
sketch6.addConstraint(Sketcher.Constraint("Vertical", 13))
sketch6.addConstraint(Sketcher.Constraint("Horizontal", 15))
sketch6.addConstraint(Sketcher.Constraint("Equal", 1, 3))
sketch6.addConstraint(Sketcher.Constraint("Equal", 3, 5))
sketch6.addConstraint(Sketcher.Constraint("Equal", 5, 7))
sketch6.addConstraint(Sketcher.Constraint("Equal", 8, 10))
sketch6.addConstraint(Sketcher.Constraint("Equal", 10, 12))
sketch6.addConstraint(Sketcher.Constraint("Equal", 12, 14))
sketch6.addConstraint(Sketcher.Constraint("Symmetric", 1, 3, 5, 3, -1, 1))
sketch6.addConstraint(Sketcher.Constraint("Radius", 1, Q("4 mm")))
sketch6.addConstraint(Sketcher.Constraint("DistanceX", 2, 1, 2, 2, Q("113 mm")))
sketch6.addConstraint(Sketcher.Constraint("DistanceX", 11, 2, 11, 1, Q("103 mm")))
sketch6.addConstraint(Sketcher.Constraint("DistanceY", 0, 2, 0, 1, Q("63 mm")))
sketch6.addConstraint(Sketcher.Constraint("DistanceY", 9, 2, 9, 1, Q("53 mm")))
sketch6.addConstraint(Sketcher.Constraint("Radius", 8, Q("4.25 mm")))
sketch6.addConstraint(Sketcher.Constraint("DistanceX", -1, 1, 8, 3, Q("51 mm")))
sketch6.addConstraint(Sketcher.Constraint("DistanceY", -1, 1, 8, 3, Q("27 mm")))
pad3 = doc.addObject("PartDesign::Pad", "Pad002")
body.addObject(pad3)
pad3.Profile = sketch6
pad3.Length = 2.5

doc.recompute()
